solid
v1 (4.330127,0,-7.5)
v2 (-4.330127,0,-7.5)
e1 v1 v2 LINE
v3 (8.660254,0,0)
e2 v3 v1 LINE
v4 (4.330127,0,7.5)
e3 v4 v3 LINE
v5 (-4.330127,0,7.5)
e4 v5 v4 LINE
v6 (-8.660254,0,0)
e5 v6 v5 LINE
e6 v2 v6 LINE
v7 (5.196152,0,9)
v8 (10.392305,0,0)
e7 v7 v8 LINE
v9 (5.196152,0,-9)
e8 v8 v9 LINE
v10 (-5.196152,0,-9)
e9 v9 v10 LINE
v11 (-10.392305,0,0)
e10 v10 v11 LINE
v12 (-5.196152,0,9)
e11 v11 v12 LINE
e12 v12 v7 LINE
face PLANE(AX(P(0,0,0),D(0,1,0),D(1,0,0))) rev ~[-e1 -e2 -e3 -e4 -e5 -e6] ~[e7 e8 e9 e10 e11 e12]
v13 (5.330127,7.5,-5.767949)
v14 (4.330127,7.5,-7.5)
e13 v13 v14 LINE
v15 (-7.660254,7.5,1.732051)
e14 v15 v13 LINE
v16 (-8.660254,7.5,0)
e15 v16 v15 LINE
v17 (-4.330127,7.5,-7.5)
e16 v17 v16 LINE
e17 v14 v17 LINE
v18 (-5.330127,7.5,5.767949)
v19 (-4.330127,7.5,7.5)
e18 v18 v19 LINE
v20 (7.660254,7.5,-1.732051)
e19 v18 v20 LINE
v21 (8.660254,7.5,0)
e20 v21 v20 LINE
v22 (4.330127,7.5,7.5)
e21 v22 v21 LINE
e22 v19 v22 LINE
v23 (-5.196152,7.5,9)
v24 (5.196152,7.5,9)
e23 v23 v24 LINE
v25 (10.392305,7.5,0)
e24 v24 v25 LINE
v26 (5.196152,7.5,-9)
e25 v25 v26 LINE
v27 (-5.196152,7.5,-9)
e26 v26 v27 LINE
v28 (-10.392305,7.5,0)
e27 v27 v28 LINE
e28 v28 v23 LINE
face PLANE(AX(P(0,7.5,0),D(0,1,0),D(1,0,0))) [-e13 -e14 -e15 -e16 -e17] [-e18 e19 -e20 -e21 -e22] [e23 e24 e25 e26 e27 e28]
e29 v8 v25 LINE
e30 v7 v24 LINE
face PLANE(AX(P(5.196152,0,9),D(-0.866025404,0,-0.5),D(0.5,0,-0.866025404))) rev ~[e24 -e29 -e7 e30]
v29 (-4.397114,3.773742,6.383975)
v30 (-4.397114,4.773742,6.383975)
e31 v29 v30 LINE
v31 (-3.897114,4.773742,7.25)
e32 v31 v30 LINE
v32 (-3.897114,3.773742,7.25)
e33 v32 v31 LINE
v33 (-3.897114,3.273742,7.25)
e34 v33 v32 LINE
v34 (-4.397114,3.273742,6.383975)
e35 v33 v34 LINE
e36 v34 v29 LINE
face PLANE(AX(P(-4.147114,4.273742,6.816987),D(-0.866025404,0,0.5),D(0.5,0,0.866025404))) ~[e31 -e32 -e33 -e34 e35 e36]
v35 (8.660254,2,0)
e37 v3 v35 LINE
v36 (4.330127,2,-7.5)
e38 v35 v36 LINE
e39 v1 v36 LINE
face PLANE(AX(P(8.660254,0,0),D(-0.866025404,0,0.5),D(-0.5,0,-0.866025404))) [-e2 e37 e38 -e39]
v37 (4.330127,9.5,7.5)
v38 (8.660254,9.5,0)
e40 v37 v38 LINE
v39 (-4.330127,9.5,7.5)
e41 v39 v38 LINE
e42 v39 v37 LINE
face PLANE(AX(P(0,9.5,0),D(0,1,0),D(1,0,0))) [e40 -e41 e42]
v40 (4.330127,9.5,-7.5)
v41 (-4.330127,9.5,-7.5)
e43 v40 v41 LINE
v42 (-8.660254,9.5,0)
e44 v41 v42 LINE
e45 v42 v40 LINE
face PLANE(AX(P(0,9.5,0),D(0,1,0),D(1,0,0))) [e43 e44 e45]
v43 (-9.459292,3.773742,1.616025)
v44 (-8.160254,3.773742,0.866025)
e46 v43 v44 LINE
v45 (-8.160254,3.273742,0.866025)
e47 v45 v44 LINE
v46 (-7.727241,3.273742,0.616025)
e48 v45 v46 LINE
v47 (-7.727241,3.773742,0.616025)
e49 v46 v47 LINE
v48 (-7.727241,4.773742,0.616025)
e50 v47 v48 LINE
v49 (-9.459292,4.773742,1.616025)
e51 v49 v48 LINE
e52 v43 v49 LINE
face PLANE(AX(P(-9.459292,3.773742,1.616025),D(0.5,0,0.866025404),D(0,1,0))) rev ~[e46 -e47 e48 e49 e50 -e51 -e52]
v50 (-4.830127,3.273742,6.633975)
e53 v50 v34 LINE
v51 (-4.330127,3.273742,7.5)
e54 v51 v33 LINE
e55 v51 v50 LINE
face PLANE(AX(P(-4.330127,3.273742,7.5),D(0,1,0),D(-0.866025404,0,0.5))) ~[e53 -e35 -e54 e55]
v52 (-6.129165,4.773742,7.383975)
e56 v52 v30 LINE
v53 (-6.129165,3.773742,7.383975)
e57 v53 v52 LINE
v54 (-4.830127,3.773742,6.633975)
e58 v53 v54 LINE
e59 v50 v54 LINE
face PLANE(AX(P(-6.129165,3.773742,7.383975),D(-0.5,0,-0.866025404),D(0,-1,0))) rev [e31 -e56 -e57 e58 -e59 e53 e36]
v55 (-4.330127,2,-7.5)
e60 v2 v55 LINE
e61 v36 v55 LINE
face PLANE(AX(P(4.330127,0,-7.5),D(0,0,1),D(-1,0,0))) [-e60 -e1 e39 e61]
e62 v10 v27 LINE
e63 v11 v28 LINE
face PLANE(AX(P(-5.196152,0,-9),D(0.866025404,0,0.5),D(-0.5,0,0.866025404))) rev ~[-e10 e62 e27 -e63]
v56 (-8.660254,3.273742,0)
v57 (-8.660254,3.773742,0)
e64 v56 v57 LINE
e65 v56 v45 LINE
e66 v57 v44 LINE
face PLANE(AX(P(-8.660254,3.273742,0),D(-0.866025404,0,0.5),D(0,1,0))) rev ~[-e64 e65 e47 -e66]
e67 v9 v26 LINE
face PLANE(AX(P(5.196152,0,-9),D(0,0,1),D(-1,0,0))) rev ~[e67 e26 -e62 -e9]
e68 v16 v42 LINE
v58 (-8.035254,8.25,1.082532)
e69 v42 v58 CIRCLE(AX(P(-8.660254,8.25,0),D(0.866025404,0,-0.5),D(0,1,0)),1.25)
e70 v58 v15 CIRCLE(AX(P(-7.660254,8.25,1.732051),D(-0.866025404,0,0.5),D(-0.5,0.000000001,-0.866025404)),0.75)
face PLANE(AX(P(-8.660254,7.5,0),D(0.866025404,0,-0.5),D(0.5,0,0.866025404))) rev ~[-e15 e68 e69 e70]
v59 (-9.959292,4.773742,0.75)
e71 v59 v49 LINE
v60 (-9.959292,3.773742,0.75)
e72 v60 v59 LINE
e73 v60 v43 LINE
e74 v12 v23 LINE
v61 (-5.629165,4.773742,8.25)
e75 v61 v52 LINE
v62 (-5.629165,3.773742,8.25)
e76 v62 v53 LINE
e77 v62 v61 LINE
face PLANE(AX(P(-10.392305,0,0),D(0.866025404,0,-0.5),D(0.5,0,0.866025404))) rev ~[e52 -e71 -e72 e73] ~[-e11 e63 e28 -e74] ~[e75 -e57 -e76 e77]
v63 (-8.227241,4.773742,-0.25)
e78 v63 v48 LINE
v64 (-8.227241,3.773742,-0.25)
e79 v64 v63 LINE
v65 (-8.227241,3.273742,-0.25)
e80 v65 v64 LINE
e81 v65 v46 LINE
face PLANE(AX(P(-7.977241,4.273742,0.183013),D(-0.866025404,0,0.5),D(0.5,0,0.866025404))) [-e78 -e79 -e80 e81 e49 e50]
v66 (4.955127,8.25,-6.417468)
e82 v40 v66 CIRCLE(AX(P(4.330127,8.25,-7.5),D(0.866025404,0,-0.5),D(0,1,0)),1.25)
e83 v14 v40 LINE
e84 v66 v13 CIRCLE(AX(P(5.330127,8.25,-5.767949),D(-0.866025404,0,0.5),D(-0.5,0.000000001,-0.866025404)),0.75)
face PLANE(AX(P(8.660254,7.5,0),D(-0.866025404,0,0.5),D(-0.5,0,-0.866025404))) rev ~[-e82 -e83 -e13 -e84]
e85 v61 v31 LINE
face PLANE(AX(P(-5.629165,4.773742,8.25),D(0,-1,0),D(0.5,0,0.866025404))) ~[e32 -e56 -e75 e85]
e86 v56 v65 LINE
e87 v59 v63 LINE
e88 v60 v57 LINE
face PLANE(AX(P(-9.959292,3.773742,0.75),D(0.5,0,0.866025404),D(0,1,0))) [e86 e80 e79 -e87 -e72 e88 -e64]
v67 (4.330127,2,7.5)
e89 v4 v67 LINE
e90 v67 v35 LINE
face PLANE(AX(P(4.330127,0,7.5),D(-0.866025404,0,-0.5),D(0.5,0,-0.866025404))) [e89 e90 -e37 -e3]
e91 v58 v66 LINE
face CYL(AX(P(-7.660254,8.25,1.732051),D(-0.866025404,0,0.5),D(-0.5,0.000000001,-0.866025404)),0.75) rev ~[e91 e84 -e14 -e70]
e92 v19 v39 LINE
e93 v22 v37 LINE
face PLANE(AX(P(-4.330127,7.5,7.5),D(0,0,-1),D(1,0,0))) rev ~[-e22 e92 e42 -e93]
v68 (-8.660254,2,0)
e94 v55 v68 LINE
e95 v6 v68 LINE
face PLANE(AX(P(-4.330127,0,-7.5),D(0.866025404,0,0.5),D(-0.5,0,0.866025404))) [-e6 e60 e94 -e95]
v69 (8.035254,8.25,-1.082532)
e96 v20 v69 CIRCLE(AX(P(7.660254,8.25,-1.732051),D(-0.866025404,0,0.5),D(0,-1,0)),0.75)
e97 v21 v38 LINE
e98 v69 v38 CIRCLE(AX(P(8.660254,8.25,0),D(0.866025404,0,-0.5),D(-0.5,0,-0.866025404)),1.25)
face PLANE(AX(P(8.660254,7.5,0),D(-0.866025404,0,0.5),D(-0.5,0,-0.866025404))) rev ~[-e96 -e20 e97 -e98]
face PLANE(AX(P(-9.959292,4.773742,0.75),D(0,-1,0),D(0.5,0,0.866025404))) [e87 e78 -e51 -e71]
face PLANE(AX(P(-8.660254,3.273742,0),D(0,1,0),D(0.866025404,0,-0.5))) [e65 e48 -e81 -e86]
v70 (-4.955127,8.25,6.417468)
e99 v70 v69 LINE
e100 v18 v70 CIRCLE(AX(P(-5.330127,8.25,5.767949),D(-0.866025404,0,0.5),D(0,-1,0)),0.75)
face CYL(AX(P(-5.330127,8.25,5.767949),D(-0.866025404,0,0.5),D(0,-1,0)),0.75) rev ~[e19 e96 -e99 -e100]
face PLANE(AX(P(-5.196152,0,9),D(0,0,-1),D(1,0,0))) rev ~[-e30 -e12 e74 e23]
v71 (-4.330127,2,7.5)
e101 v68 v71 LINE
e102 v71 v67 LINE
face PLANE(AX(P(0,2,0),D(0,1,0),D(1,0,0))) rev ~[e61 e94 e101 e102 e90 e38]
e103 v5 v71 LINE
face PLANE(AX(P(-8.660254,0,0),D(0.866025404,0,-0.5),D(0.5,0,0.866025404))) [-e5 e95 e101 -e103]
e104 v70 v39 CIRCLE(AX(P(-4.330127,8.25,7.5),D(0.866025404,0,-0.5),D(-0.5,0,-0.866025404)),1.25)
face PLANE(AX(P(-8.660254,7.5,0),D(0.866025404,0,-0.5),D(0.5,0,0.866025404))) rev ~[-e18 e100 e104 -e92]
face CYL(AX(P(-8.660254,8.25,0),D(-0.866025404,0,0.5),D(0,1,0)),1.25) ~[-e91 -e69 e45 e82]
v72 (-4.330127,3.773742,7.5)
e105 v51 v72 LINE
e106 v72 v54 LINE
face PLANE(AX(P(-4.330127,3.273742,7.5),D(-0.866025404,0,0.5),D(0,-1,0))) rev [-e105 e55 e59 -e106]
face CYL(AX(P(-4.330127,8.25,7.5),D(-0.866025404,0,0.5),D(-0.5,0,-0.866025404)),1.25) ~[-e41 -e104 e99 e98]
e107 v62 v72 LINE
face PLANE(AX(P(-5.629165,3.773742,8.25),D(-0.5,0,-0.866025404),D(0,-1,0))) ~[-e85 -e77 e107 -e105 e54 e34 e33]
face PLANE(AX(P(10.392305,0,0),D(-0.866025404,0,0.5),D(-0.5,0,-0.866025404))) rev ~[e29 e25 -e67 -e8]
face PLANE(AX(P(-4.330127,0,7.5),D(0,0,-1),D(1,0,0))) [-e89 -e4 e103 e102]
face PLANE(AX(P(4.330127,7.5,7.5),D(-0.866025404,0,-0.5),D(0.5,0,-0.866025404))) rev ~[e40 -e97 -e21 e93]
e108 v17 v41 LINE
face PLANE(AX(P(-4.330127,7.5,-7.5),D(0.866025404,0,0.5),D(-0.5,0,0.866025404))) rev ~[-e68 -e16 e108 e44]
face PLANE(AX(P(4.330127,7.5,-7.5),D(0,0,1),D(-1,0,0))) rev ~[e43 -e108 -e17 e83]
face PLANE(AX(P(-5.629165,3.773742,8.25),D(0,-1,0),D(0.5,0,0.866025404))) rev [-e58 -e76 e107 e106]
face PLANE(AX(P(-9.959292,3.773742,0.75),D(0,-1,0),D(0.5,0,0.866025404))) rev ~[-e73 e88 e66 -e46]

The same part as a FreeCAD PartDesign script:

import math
import FreeCAD as App
import Part
import Sketcher
Q = App.Units.Quantity


def add_polygon(sketch, points):
    """Adds a closed chain of lines whose ends are joined by coincident constraints."""
    first, n = sketch.GeometryCount, len(points)
    for a, b in zip(points, points[1:] + points[:1]):
        sketch.addGeometry(Part.LineSegment(App.Vector(*a, 0), App.Vector(*b, 0)), False)
    for i in range(n):
        sketch.addConstraint(Sketcher.Constraint("Coincident", first + i, 2, first + (i + 1) % n, 1))

doc = App.newDocument("Part")
body = doc.addObject("PartDesign::Body", "Body")

# Sketch on XZ plane
sketch1 = body.newObject("Sketcher::SketchObject", "Sketch")
sketch1.AttachmentSupport = (doc.getObject("XZ_Plane"), [""])
sketch1.MapMode = "FlatFace"
add_polygon(sketch1, [(-5.196152, 9), (5.196152, 9), (10.392305, 0), (5.196152, -9), (-5.196152, -9), (-10.392305, 0)])  # lines 0-5
sketch1.addConstraint(Sketcher.Constraint("Horizontal", 0))
sketch1.addConstraint(Sketcher.Constraint("Horizontal", 3))
sketch1.addConstraint(Sketcher.Constraint("Symmetric", 0, 2, 3, 2, -1, 1))
sketch1.addConstraint(Sketcher.Constraint("Symmetric", 1, 2, 4, 2, -1, 1))
sketch1.addConstraint(Sketcher.Constraint("PointOnObject", 1, 2, -1))
sketch1.addConstraint(Sketcher.Constraint("Parallel", 2, 5))
sketch1.addConstraint(Sketcher.Constraint("Vertical", 0, 2, 2, 2))
sketch1.addConstraint(Sketcher.Constraint("Angle", 1, Q("-60 deg")))
sketch1.addConstraint(Sketcher.Constraint("DistanceY", -1, 1, 0, 2, Q("9 mm")))
sketch1.addConstraint(Sketcher.Constraint("DistanceX", 0, 1, 0, 2, Q("10.392305 mm")))
pad1 = body.newObject("PartDesign::Pad", "Pad")
pad1.Profile = sketch1
pad1.Length = 7.5
pad1.Reversed = True

# Sketch on XZ plane
sketch2 = body.newObject("Sketcher::SketchObject", "Sketch001")
sketch2.AttachmentSupport = (doc.getObject("XZ_Plane"), [""])
sketch2.MapMode = "FlatFace"
add_polygon(sketch2, [(-4.330127, 7.5), (4.330127, 7.5), (8.660254, 0), (4.330127, -7.5), (-4.330127, -7.5), (-8.660254, 0)])  # lines 0-5
sketch2.addConstraint(Sketcher.Constraint("Horizontal", 0))
sketch2.addConstraint(Sketcher.Constraint("Horizontal", 3))
sketch2.addConstraint(Sketcher.Constraint("Symmetric", 0, 2, 3, 2, -1, 1))
sketch2.addConstraint(Sketcher.Constraint("Symmetric", 1, 2, 4, 2, -1, 1))
sketch2.addConstraint(Sketcher.Constraint("PointOnObject", 1, 2, -1))
sketch2.addConstraint(Sketcher.Constraint("Parallel", 2, 5))
sketch2.addConstraint(Sketcher.Constraint("Vertical", 0, 2, 2, 2))
sketch2.addConstraint(Sketcher.Constraint("Angle", 1, Q("-60 deg")))
sketch2.addConstraint(Sketcher.Constraint("DistanceY", 2, 2, 0, 2, Q("15 mm")))
sketch2.addConstraint(Sketcher.Constraint("DistanceX", 0, 1, 0, 2, Q("8.660254 mm")))
pocket1 = body.newObject("PartDesign::Pocket", "Pocket")
pocket1.Profile = sketch2
pocket1.Length = 2

# Sketch on XZ plane
sketch3 = body.newObject("Sketcher::SketchObject", "Sketch002")
sketch3.AttachmentSupport = (doc.getObject("XZ_Plane"), [""])
sketch3.MapMode = "FlatFace"
sketch3.AttachmentOffset = App.Placement(App.Vector(0, 0, -7.5), App.Rotation())
add_polygon(sketch3, [(8.660254, 0), (4.330127, -7.5), (-4.330127, -7.5), (-8.660254, 0), (-4.330127, 7.5), (4.330127, 7.5)])  # lines 0-5
sketch3.addConstraint(Sketcher.Constraint("Horizontal", 1))
sketch3.addConstraint(Sketcher.Constraint("Horizontal", 4))
sketch3.addConstraint(Sketcher.Constraint("Symmetric", 0, 2, 3, 2, -1, 1))
sketch3.addConstraint(Sketcher.Constraint("Symmetric", 2, 2, 5, 2, -1, 1))
sketch3.addConstraint(Sketcher.Constraint("PointOnObject", 2, 2, -1))
sketch3.addConstraint(Sketcher.Constraint("Parallel", 2, 5))
sketch3.addConstraint(Sketcher.Constraint("Vertical", 1, 2, 3, 2))
sketch3.addConstraint(Sketcher.Constraint("Angle", 0, Q("-120 deg")))
sketch3.addConstraint(Sketcher.Constraint("DistanceY", 1, 2, 3, 2, Q("15 mm")))
sketch3.addConstraint(Sketcher.Constraint("DistanceX", 1, 2, 1, 1, Q("8.660254 mm")))
pad2 = body.newObject("PartDesign::Pad", "Pad001")
pad2.Profile = sketch3
pad2.Length = 2
pad2.Reversed = True

# Sketch on an angled plane
sketch4 = body.newObject("Sketcher::SketchObject", "Sketch003")
sketch4.Placement = App.Placement(App.Vector(-6.495191, 0, 3.75), App.Rotation(App.Vector(0.5, 0, 0.866025404), App.Vector(0, 1, 0), App.Vector(-0.866025404, 0, 0.5), "ZXY"))
sketch4.addGeometry(Part.ArcOfCircle(Part.Circle(App.Vector(-2.330127, 8.25, 0), App.Vector(0, 0, 1), 0.75), math.radians(180), math.radians(270)), False)
sketch4.addGeometry(Part.LineSegment(App.Vector(-2.330127, 7.5, 0), App.Vector(2.330127, 7.5, 0)), False)
sketch4.addGeometry(Part.ArcOfCircle(Part.Circle(App.Vector(2.330127, 8.25, 0), App.Vector(0, 0, 1), 0.75), math.radians(-90), math.radians(0)), False)
sketch4.addGeometry(Part.ArcOfCircle(Part.Circle(App.Vector(4.330127, 8.25, 0), App.Vector(0, 0, 1), 1.25), math.radians(90), math.radians(180)), False)
sketch4.addGeometry(Part.LineSegment(App.Vector(4.330127, 9.5, 0), App.Vector(-4.330127, 9.5, 0)), False)
sketch4.addGeometry(Part.ArcOfCircle(Part.Circle(App.Vector(-4.330127, 8.25, 0), App.Vector(0, 0, 1), 1.25), math.radians(0), math.radians(90)), False)
sketch4.addConstraint(Sketcher.Constraint("Tangent", 0, 2, 1, 1))
sketch4.addConstraint(Sketcher.Constraint("Tangent", 1, 2, 2, 1))
sketch4.addConstraint(Sketcher.Constraint("Tangent", 2, 2, 3, 2))
sketch4.addConstraint(Sketcher.Constraint("Tangent", 3, 1, 4, 1))
sketch4.addConstraint(Sketcher.Constraint("Tangent", 4, 2, 5, 2))
sketch4.addConstraint(Sketcher.Constraint("Tangent", 5, 1, 0, 1))
sketch4.addConstraint(Sketcher.Constraint("Horizontal", 1))
sketch4.addConstraint(Sketcher.Constraint("Horizontal", 4))
sketch4.addConstraint(Sketcher.Constraint("Equal", 0, 2))
sketch4.addConstraint(Sketcher.Constraint("Equal", 3, 5))
sketch4.addConstraint(Sketcher.Constraint("Horizontal", 2, 3, 3, 3))
sketch4.addConstraint(Sketcher.Constraint("Radius", 0, Q("0.75 mm")))
sketch4.addConstraint(Sketcher.Constraint("Radius", 3, Q("1.25 mm")))
sketch4.addConstraint(Sketcher.Constraint("DistanceY", -1, 1, 0, 2, Q("7.5 mm")))
sketch4.addConstraint(Sketcher.Constraint("DistanceX", 1, 1, 1, 2, Q("4.660254 mm")))
sketch4.addConstraint(Sketcher.Constraint("DistanceX", 0, 3, -1, 1, Q("2.330127 mm")))
pocket2 = body.newObject("PartDesign::Pocket", "Pocket001")
pocket2.Profile = sketch4
pocket2.Length = 15

# Sketch on an angled plane
sketch5 = body.newObject("Sketcher::SketchObject", "Sketch004")
sketch5.Placement = App.Placement(App.Vector(-7.794229, 0, 4.5), App.Rotation(App.Vector(0.5, 0, 0.866025404), App.Vector(0, 1, 0), App.Vector(-0.866025404, 0, 0.5), "ZXY"))
add_polygon(sketch5, [(-4.330127, 4.773742), (-4.330127, 3.773742), (-3.330127, 3.773742), (-3.330127, 4.773742)])  # lines 0-3
sketch5.addConstraint(Sketcher.Constraint("Vertical", 0))
sketch5.addConstraint(Sketcher.Constraint("Horizontal", 1))
sketch5.addConstraint(Sketcher.Constraint("Vertical", 2))
sketch5.addConstraint(Sketcher.Constraint("Horizontal", 3))
sketch5.addConstraint(Sketcher.Constraint("Equal", 3, 0))
sketch5.addConstraint(Sketcher.Constraint("DistanceX", 1, 1, 1, 2, Q("1 mm")))
sketch5.addConstraint(Sketcher.Constraint("DistanceY", -1, 1, 0, 2, Q("3.773742 mm")))
sketch5.addConstraint(Sketcher.Constraint("DistanceX", 0, 2, -1, 1, Q("4.330127 mm")))
pocket3 = body.newObject("PartDesign::Pocket", "Pocket002")
pocket3.Profile = sketch5
pocket3.Length = 2

# Sketch on an angled plane
sketch6 = body.newObject("Sketcher::SketchObject", "Sketch005")
sketch6.Placement = App.Placement(App.Vector(-2.165064, 0, -3.75), App.Rotation(App.Vector(0.866025404, 0, -0.5), App.Vector(0, 1, 0), App.Vector(0.5, 0, 0.866025404), "ZXY"))
add_polygon(sketch6, [(-7.5, 3.773742), (-7.5, 3.273742), (-7, 3.273742), (-7, 3.773742)])  # lines 0-3
sketch6.addConstraint(Sketcher.Constraint("Vertical", 0))
sketch6.addConstraint(Sketcher.Constraint("Horizontal", 1))
sketch6.addConstraint(Sketcher.Constraint("Vertical", 2))
sketch6.addConstraint(Sketcher.Constraint("Horizontal", 3))
sketch6.addConstraint(Sketcher.Constraint("Equal", 3, 0))
sketch6.addConstraint(Sketcher.Constraint("DistanceX", 1, 1, 1, 2, Q("0.5 mm")))
sketch6.addConstraint(Sketcher.Constraint("DistanceX", 1, 2, -1, 1, Q("7 mm")))
sketch6.addConstraint(Sketcher.Constraint("DistanceY", -1, 1, 0, 2, Q("3.273742 mm")))
pocket4 = body.newObject("PartDesign::Pocket", "Pocket003")
pocket4.Profile = sketch6
pocket4.Length = 1
pocket4.Reversed = True
doc.recompute()

datumplane = body.newObject("PartDesign::Plane", "DatumPlane")
datumplane.Placement = App.Placement(App.Vector(0, 0, 0), App.Rotation(App.Vector(0.866025404, 0, -0.5), App.Vector(0, -1, 0), App.Vector(-0.5, 0, -0.866025404), "ZXY"))
mirrored = body.newObject("PartDesign::Mirrored", "Mirrored")
mirrored.Originals = [pocket3, pocket4]
mirrored.MirrorPlane = (datumplane, [""])
body.Tip = mirrored

doc.recompute()
